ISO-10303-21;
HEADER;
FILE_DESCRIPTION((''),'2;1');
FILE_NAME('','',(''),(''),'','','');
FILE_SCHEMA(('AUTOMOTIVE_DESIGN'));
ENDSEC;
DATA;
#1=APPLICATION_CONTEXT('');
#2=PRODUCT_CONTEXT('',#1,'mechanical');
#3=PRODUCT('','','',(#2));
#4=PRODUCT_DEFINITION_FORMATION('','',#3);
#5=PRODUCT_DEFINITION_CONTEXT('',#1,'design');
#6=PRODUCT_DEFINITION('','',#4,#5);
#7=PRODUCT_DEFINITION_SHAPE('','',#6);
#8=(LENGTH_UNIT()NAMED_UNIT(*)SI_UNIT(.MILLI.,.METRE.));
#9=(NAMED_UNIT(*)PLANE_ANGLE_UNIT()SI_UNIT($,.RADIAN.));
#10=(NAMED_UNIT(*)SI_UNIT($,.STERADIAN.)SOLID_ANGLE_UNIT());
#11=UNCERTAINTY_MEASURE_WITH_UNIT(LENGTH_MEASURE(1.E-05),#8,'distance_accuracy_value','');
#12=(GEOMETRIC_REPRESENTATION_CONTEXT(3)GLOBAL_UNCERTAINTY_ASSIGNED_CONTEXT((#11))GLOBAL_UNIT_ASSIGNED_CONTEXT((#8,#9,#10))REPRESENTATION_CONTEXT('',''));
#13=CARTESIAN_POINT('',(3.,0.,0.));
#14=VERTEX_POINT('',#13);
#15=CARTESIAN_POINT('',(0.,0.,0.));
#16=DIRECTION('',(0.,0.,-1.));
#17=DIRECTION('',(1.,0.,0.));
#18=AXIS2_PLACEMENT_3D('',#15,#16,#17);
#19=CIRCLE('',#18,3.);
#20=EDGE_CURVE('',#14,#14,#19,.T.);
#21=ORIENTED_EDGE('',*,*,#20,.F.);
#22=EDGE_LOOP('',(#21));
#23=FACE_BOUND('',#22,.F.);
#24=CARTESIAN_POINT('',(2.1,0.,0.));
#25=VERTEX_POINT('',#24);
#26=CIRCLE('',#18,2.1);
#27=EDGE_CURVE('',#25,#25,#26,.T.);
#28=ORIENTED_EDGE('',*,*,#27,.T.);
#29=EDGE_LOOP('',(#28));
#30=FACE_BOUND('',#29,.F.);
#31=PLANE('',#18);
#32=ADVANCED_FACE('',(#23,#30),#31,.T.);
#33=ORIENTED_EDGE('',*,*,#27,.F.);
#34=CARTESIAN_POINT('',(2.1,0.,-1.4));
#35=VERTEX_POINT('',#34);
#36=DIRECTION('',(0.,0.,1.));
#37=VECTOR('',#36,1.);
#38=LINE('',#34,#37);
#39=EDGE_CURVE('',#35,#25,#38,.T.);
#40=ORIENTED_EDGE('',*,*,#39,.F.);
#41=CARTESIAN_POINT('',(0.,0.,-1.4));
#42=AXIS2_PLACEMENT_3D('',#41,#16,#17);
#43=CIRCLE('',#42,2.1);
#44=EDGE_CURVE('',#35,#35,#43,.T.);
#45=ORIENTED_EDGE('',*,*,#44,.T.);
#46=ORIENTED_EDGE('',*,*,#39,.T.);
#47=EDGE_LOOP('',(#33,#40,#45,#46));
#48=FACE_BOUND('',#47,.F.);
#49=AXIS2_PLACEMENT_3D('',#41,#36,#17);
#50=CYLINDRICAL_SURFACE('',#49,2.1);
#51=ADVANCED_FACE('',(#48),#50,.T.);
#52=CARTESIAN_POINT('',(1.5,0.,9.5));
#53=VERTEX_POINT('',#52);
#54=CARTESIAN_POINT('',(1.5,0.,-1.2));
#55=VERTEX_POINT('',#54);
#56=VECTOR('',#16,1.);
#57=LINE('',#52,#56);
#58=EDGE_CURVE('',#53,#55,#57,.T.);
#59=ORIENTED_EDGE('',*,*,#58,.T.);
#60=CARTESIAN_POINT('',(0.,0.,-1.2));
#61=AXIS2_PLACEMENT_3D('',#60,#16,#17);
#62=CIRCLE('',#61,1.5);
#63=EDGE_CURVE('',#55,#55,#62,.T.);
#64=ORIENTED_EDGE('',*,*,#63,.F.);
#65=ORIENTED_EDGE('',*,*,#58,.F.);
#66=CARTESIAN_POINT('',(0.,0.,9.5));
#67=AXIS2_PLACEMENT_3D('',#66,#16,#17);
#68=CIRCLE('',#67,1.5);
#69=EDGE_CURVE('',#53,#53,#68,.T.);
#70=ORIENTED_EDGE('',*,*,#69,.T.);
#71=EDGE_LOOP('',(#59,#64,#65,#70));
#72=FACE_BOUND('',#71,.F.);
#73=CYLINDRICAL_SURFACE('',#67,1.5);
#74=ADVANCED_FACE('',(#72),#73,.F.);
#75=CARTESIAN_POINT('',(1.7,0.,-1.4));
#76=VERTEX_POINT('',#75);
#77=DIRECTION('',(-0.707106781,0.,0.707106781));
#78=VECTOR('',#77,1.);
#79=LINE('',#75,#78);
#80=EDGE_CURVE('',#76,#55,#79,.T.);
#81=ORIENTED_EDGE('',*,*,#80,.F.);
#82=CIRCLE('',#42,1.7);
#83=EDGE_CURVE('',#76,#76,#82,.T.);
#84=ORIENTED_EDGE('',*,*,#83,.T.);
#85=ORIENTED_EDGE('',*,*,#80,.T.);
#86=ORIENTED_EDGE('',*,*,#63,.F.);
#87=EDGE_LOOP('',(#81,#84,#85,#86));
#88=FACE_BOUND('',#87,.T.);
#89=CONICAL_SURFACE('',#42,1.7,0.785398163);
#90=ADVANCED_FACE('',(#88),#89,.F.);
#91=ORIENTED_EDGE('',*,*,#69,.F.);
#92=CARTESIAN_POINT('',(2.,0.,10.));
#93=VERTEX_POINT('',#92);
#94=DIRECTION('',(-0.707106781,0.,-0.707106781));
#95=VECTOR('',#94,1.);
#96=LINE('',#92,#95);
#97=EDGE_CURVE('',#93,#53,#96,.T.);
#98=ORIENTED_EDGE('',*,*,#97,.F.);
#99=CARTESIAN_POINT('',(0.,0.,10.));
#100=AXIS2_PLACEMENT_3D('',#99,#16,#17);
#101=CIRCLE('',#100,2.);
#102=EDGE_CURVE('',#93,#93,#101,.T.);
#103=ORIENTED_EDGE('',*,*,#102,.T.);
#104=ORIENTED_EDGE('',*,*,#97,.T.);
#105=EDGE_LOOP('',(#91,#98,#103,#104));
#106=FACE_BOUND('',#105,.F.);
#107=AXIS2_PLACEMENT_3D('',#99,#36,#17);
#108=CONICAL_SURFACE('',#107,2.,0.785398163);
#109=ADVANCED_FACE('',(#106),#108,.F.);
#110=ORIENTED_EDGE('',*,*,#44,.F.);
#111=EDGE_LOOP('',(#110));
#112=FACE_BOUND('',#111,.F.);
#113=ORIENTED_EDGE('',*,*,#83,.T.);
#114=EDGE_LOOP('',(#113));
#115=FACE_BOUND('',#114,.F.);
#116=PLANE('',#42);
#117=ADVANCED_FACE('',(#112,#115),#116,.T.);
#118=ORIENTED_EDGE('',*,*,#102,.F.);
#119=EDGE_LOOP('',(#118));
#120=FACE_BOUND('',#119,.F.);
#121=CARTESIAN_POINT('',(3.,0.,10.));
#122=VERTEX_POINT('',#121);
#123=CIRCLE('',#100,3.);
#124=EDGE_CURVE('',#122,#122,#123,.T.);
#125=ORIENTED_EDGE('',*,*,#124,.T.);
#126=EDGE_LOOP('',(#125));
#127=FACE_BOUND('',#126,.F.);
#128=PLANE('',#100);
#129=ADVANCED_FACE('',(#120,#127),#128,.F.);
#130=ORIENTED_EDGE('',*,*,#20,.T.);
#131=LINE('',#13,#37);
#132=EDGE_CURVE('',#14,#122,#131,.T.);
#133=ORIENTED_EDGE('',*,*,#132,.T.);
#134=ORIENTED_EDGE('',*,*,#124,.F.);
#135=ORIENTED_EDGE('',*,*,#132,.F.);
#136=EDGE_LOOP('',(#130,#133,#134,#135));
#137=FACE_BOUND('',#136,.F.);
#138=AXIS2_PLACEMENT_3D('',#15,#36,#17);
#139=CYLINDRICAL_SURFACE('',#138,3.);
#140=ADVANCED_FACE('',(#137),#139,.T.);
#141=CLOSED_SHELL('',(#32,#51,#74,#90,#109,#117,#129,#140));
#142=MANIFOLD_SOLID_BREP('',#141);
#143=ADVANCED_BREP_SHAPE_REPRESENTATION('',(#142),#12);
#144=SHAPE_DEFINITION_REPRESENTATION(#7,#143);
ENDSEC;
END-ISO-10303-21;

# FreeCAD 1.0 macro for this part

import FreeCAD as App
import Part
import Sketcher
from FreeCAD import Vector
Q = App.Units.Quantity

doc = App.newDocument("Part")
body = doc.addObject("PartDesign::Body", "Body")

# Sketch on XZ plane
sketch1 = body.newObject("Sketcher::SketchObject", "Sketch")
sketch1.AttachmentSupport = (doc.getObject("XZ_Plane"), [""])
sketch1.MapMode = "FlatFace"
sketch1.addGeometry([
    Part.LineSegment(Vector(1.5, -1.2, 0), Vector(1.7, -1.4, 0)),  # 0
    Part.LineSegment(Vector(1.7, -1.4, 0), Vector(2.1, -1.4, 0)),  # 1
    Part.LineSegment(Vector(2.1, -1.4, 0), Vector(2.1, 0, 0)),  # 2
    Part.LineSegment(Vector(2.1, 0, 0), Vector(3, 0, 0)),  # 3
    Part.LineSegment(Vector(3, 0, 0), Vector(3, 10, 0)),  # 4
    Part.LineSegment(Vector(3, 10, 0), Vector(2, 10, 0)),  # 5
    Part.LineSegment(Vector(2, 10, 0), Vector(1.5, 9.5, 0)),  # 6
    Part.LineSegment(Vector(1.5, 9.5, 0), Vector(1.5, -1.2, 0)),  # 7
], False)
sketch1.addConstraint([
    Sketcher.Constraint("Coincident", 0, 2, 1, 1),
    Sketcher.Constraint("Coincident", 1, 2, 2, 1),
    Sketcher.Constraint("Coincident", 2, 2, 3, 1),
    Sketcher.Constraint("Coincident", 3, 2, 4, 1),
    Sketcher.Constraint("Coincident", 4, 2, 5, 1),
    Sketcher.Constraint("Coincident", 5, 2, 6, 1),
    Sketcher.Constraint("Coincident", 6, 2, 7, 1),
    Sketcher.Constraint("Coincident", 7, 2, 0, 1),
    Sketcher.Constraint("Horizontal", 1),
    Sketcher.Constraint("Vertical", 2),
    Sketcher.Constraint("Horizontal", 3),
    Sketcher.Constraint("Vertical", 4),
    Sketcher.Constraint("Horizontal", 5),
    Sketcher.Constraint("Vertical", 7),
    Sketcher.Constraint("PointOnObject", 2, 2, -1),
    Sketcher.Constraint("Perpendicular", 0, 6),
    Sketcher.Constraint("DistanceX", -1, 1, 3, 2, 3.0),
    Sketcher.Constraint("DistanceX", -1, 1, 0, 2, 1.7),
    Sketcher.Constraint("DistanceX", -1, 1, 1, 2, 2.1),
    Sketcher.Constraint("DistanceX", 5, 2, 5, 1, 1.0),
    Sketcher.Constraint("DistanceY", 4, 1, 4, 2, 10.0),
    Sketcher.Constraint("Angle", 0, Q("-45 deg")),
    Sketcher.Constraint("DistanceY", 2, 1, 2, 2, 1.4),
    Sketcher.Constraint("DistanceY", 7, 2, 7, 1, 10.7),
])
revolution = body.newObject("PartDesign::Revolution", "Revolution")
revolution.Profile = sketch1
revolution.ReferenceAxis = (sketch1, ["V_Axis"])
revolution.Angle = 360

doc.recompute()
